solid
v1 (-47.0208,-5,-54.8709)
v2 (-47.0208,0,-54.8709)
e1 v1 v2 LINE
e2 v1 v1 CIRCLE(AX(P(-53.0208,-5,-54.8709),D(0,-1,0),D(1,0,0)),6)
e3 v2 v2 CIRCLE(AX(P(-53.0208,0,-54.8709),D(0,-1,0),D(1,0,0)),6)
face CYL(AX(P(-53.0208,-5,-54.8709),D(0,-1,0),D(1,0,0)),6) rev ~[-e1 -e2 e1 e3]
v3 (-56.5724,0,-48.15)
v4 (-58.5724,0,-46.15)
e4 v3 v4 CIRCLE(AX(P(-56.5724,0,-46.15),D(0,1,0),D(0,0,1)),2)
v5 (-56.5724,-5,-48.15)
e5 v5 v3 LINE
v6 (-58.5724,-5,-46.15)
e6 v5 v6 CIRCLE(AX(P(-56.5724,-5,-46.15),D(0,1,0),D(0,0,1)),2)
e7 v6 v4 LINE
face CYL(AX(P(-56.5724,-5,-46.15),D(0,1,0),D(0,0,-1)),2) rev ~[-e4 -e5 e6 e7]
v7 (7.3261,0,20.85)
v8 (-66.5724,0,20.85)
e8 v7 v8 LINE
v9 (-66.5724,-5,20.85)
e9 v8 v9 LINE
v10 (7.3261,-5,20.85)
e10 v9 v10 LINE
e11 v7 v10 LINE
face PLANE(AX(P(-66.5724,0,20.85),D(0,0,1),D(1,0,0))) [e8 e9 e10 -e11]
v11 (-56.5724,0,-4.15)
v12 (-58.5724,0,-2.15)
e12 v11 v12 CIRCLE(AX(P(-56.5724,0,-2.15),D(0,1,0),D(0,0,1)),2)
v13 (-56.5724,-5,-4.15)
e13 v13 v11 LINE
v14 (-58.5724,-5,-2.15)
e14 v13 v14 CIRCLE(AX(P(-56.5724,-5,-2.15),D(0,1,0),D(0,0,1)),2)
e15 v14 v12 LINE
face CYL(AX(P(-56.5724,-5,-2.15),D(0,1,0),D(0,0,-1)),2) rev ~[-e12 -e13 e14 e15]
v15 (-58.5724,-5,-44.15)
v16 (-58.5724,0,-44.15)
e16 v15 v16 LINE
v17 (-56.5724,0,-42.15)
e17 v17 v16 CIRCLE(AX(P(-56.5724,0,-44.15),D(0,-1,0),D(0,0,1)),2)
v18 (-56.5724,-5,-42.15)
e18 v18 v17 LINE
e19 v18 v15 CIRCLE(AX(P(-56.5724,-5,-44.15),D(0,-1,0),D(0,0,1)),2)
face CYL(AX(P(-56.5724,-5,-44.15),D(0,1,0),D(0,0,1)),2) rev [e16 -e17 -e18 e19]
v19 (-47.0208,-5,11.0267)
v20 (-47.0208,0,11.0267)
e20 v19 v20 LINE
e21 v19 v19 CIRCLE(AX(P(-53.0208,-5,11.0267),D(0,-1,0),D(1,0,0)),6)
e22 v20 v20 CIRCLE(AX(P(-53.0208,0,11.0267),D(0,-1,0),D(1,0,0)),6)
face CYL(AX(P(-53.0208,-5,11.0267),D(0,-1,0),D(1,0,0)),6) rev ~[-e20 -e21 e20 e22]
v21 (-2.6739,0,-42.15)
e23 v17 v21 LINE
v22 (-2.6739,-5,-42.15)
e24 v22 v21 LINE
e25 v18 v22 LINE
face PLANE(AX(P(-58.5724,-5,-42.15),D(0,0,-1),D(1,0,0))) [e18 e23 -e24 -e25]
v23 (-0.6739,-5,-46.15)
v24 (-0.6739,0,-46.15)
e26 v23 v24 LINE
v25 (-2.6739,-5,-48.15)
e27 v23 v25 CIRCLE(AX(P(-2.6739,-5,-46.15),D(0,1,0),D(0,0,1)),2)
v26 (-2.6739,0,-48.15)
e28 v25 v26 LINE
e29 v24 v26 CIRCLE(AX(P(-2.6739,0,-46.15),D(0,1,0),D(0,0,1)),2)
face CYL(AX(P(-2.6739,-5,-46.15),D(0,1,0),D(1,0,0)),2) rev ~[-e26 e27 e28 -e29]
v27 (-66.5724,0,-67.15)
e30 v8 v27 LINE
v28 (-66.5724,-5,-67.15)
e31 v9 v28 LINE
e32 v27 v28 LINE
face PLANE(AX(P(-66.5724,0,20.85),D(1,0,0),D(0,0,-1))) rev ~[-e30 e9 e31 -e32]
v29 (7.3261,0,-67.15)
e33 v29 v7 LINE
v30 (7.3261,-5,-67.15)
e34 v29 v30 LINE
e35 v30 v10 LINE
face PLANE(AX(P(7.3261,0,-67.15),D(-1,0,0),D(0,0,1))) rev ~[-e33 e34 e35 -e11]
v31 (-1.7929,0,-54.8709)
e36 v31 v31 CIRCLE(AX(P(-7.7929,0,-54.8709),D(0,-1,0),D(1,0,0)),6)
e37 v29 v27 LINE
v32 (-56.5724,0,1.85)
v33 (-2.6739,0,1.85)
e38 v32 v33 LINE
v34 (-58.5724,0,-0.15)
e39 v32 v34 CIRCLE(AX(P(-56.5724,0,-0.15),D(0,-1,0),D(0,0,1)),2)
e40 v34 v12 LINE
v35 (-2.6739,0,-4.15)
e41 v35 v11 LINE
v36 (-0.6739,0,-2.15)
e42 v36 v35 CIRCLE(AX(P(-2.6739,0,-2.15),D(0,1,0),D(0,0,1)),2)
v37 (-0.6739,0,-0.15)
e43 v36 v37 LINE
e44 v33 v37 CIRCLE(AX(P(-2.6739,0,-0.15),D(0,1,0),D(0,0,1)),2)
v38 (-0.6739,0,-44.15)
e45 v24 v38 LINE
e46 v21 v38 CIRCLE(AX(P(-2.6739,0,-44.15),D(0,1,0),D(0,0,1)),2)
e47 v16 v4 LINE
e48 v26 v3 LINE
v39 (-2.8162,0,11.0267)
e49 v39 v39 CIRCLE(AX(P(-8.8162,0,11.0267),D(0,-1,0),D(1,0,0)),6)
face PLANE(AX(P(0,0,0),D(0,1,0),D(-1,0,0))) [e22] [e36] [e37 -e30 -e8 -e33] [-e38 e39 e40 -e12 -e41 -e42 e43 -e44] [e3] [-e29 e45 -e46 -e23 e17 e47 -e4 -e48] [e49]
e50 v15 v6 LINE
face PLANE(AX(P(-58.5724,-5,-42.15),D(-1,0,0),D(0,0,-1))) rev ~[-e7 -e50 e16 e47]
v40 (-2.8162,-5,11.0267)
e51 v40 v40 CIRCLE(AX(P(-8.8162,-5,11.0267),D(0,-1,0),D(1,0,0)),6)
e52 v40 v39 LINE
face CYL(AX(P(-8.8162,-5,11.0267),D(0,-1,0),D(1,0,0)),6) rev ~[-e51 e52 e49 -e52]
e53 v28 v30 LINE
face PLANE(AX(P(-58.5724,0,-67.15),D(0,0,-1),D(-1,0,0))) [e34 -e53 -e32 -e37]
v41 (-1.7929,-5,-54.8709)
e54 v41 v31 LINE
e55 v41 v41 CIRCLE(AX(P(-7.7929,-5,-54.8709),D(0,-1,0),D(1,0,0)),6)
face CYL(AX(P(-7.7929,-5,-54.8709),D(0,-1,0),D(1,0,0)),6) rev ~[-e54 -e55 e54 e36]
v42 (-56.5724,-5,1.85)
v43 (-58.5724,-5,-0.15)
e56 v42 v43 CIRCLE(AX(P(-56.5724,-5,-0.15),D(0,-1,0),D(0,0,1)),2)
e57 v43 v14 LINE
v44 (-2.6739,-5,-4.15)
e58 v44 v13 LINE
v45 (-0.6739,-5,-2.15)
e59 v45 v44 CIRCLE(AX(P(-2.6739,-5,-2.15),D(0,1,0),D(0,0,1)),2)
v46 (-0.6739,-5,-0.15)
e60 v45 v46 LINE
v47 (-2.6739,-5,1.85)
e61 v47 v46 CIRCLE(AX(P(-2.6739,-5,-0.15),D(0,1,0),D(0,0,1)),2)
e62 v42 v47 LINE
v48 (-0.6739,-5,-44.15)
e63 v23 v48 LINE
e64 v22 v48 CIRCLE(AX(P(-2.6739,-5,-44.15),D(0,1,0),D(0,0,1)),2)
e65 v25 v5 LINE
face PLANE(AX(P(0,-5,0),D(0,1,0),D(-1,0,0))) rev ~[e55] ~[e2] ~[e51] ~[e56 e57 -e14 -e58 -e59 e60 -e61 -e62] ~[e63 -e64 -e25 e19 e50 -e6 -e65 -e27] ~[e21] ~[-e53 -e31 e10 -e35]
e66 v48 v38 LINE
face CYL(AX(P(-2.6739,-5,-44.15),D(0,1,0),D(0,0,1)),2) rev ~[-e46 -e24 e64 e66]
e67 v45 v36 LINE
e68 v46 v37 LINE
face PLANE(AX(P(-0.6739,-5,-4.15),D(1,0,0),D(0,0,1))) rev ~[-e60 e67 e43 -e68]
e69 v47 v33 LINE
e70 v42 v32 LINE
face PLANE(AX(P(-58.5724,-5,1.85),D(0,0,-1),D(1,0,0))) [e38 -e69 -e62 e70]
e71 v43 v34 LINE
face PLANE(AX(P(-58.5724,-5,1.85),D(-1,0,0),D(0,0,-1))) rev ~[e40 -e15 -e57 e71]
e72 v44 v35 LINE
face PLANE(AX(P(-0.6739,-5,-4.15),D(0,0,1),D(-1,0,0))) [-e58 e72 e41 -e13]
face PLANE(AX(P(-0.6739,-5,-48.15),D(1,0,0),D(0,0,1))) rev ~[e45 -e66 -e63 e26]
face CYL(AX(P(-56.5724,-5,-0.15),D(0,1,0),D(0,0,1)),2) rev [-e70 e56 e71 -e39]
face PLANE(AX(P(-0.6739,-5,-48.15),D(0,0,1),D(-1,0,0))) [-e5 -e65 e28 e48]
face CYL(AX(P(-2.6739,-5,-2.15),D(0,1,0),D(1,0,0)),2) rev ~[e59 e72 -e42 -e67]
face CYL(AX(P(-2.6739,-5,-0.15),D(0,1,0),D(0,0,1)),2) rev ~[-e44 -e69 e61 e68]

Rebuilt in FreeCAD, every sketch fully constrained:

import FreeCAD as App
import Part
import Sketcher
from FreeCAD import Vector


def edges_at(feature, points):
    """Names of the edges that pass closest to the given points."""
    edges = feature.Shape.Edges
    near = lambda p: min(range(len(edges)), key=lambda i: edges[i].distToShape(Part.Vertex(*p))[0])
    return sorted({f"Edge{near(p) + 1}" for p in points})


def add_polygon(sketch, points):
    """Adds a closed chain of lines whose ends are joined by coincident constraints."""
    first, n = sketch.GeometryCount, len(points)
    for a, b in zip(points, points[1:] + points[:1]):
        sketch.addGeometry(Part.LineSegment(App.Vector(*a, 0), App.Vector(*b, 0)), False)
    for i in range(n):
        sketch.addConstraint(Sketcher.Constraint("Coincident", first + i, 2, first + (i + 1) % n, 1))

doc = App.newDocument("Part")
body = doc.addObject("PartDesign::Body", "Body")

# Sketch on XZ plane
sketch1 = body.newObject("Sketcher::SketchObject", "Sketch")
sketch1.AttachmentSupport = (doc.getObject("XZ_Plane"), [""])
sketch1.MapMode = "FlatFace"
add_polygon(sketch1, [(-66.5724, 20.85), (7.3261, 20.85), (7.3261, -67.15), (-66.5724, -67.15)])  # lines 0-3
sketch1.addConstraint([
    Sketcher.Constraint("Horizontal", 0),
    Sketcher.Constraint("Vertical", 1),
    Sketcher.Constraint("Horizontal", 2),
    Sketcher.Constraint("Vertical", 3),
    Sketcher.Constraint("DistanceY", 1, 2, 1, 1, 88.0),
    Sketcher.Constraint("DistanceY", -1, 1, 0, 2, 20.85),
    Sketcher.Constraint("DistanceX", 0, 1, 0, 2, 73.8985),
    Sketcher.Constraint("DistanceX", -1, 1, 0, 2, 7.326),
])
pad1 = body.newObject("PartDesign::Pad", "Pad")
pad1.Profile = sketch1
pad1.Length = 5

# Sketch on XZ plane
sketch2 = body.newObject("Sketcher::SketchObject", "Sketch001")
sketch2.AttachmentSupport = (doc.getObject("XZ_Plane"), [""])
sketch2.MapMode = "FlatFace"
sketch2.AttachmentOffset = App.Placement(Vector(0, 0, 5), App.Rotation())
add_polygon(sketch2, [(-0.6739, 1.85), (-58.5724, 1.85), (-58.5724, -4.15), (-0.6739, -4.15)])  # lines 0-3
add_polygon(sketch2, [(-0.6739, -42.15), (-58.5724, -42.15), (-58.5724, -48.15), (-0.6739, -48.15)])  # lines 4-7
sketch2.addConstraint([
    Sketcher.Constraint("Horizontal", 0),
    Sketcher.Constraint("Vertical", 1),
    Sketcher.Constraint("Horizontal", 2),
    Sketcher.Constraint("Vertical", 3),
    Sketcher.Constraint("Horizontal", 4),
    Sketcher.Constraint("Vertical", 5),
    Sketcher.Constraint("Horizontal", 6),
    Sketcher.Constraint("Vertical", 7),
    Sketcher.Constraint("Vertical", 1, 2, 4, 2),
    Sketcher.Constraint("Vertical", 3, 2, 6, 2),
    Sketcher.Constraint("Equal", 3, 5),
    Sketcher.Constraint("DistanceY", 1, 2, 1, 1, 6.0),
    Sketcher.Constraint("DistanceY", 4, 2, 1, 2, 38.0),
    Sketcher.Constraint("DistanceY", -1, 1, 0, 2, 1.85),
    Sketcher.Constraint("DistanceX", 0, 2, 0, 1, 57.8985),
    Sketcher.Constraint("DistanceX", 2, 2, -1, 1, 0.674),
])
pocket1 = body.newObject("PartDesign::Pocket", "Pocket")
pocket1.Profile = sketch2
pocket1.Length = 5
doc.recompute()

fillet = body.newObject("PartDesign::Fillet", "Fillet")
fillet.Base = (pocket1, edges_at(pocket1, [
    (-58.572, -2.5, 1.85),
    (-58.572, -2.5, -4.15),
    (-0.674, -2.5, 1.85),
    (-0.674, -2.5, -4.15),
    (-0.674, -2.5, -42.15),
    (-0.674, -2.5, -48.15),
    (-58.572, -2.5, -42.15),
    (-58.572, -2.5, -48.15),
]))
fillet.Radius = 2

# Sketch on XZ plane
sketch3 = body.newObject("Sketcher::SketchObject", "Sketch002")
sketch3.AttachmentSupport = (doc.getObject("XZ_Plane"), [""])
sketch3.MapMode = "FlatFace"
sketch3.AttachmentOffset = App.Placement(Vector(0, 0, 5), App.Rotation())
sketch3.addGeometry([
    Part.Circle(Vector(-8.8162, 11.0267, 0), Vector(0, 0, 1), 6),
    Part.Circle(Vector(-53.0208, 11.0267, 0), Vector(0, 0, 1), 6),
    Part.Circle(Vector(-53.0208, -54.8709, 0), Vector(0, 0, 1), 6),
    Part.Circle(Vector(-7.7929, -54.8709, 0), Vector(0, 0, 1), 6),
], False)
sketch3.addConstraint([
    Sketcher.Constraint("Equal", 0, 1),
    Sketcher.Constraint("Equal", 1, 2),
    Sketcher.Constraint("Equal", 2, 3),
    Sketcher.Constraint("Horizontal", 0, 3, 1, 3),
    Sketcher.Constraint("Horizontal", 2, 3, 3, 3),
    Sketcher.Constraint("Vertical", 1, 3, 2, 3),
    Sketcher.Constraint("Diameter", 0, 12.0),
    Sketcher.Constraint("DistanceY", 2, 3, -1, 1, 54.871),
    Sketcher.Constraint("DistanceX", 3, 3, -1, 1, 7.793),
    Sketcher.Constraint("DistanceX", 2, 3, 3, 3, 45.228),
    Sketcher.Constraint("DistanceX", 0, 3, -1, 1, 8.8162),
    Sketcher.Constraint("DistanceY", -1, 1, 0, 3, 11.0267),
])
pocket2 = body.newObject("PartDesign::Pocket", "Pocket001")
pocket2.Profile = sketch3
pocket2.Length = 10

doc.recompute()
